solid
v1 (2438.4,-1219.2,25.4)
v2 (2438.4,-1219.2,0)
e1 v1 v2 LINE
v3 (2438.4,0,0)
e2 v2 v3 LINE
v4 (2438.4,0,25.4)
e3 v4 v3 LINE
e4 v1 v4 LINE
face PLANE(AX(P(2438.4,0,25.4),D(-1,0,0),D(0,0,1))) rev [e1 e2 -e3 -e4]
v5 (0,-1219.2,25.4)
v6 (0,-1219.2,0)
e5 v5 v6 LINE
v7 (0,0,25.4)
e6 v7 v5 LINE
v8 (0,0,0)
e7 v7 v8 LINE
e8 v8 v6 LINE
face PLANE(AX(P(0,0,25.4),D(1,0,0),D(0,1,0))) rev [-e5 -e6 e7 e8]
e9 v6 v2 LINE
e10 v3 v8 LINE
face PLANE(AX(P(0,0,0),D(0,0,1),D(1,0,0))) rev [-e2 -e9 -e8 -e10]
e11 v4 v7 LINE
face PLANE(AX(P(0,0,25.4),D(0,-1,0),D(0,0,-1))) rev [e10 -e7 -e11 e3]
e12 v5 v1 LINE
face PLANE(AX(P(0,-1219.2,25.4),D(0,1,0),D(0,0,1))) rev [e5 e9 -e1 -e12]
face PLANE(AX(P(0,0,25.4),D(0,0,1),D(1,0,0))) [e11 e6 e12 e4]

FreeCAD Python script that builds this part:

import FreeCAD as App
import Part
import Sketcher
from FreeCAD import Vector
Q = App.Units.Quantity

doc = App.newDocument("Part")
body = doc.addObject("PartDesign::Body", "Body")

sketch1 = body.newObject("Sketcher::SketchObject", "Sketch")
sketch1.AttachmentSupport = (doc.getObject("XY_Plane"), [""])
sketch1.MapMode = "FlatFace"
sketch1.addGeometry(Part.LineSegment(Vector(0, 0, 0), Vector(0, -1219, 0)), False)
sketch1.addGeometry(Part.LineSegment(Vector(0, -1219, 0), Vector(2438, -1219, 0)), False)
sketch1.addGeometry(Part.LineSegment(Vector(2438, -1219, 0), Vector(2438, 0, 0)), False)
sketch1.addGeometry(Part.LineSegment(Vector(2438, 0, 0), Vector(0, 0, 0)), False)
sketch1.addConstraint(Sketcher.Constraint("Coincident", 0, 2, 1, 1))
sketch1.addConstraint(Sketcher.Constraint("Coincident", 1, 2, 2, 1))
sketch1.addConstraint(Sketcher.Constraint("Coincident", 2, 2, 3, 1))
sketch1.addConstraint(Sketcher.Constraint("Coincident", 3, 2, 0, 1))
sketch1.addConstraint(Sketcher.Constraint("Vertical", 0))
sketch1.addConstraint(Sketcher.Constraint("Horizontal", 1))
sketch1.addConstraint(Sketcher.Constraint("Vertical", 2))
sketch1.addConstraint(Sketcher.Constraint("Horizontal", 3))
sketch1.addConstraint(Sketcher.Constraint("Coincident", 3, 2, -1, 1))
sketch1.addConstraint(Sketcher.Constraint("DistanceX", 1, 1, 1, 2, Q("96 in")))
sketch1.addConstraint(Sketcher.Constraint("DistanceY", 0, 2, 0, 1, Q("48 in")))
pad1 = body.newObject("PartDesign::Pad", "Pad")
pad1.Profile = sketch1
pad1.Length = Q("1 in")

doc.recompute()
